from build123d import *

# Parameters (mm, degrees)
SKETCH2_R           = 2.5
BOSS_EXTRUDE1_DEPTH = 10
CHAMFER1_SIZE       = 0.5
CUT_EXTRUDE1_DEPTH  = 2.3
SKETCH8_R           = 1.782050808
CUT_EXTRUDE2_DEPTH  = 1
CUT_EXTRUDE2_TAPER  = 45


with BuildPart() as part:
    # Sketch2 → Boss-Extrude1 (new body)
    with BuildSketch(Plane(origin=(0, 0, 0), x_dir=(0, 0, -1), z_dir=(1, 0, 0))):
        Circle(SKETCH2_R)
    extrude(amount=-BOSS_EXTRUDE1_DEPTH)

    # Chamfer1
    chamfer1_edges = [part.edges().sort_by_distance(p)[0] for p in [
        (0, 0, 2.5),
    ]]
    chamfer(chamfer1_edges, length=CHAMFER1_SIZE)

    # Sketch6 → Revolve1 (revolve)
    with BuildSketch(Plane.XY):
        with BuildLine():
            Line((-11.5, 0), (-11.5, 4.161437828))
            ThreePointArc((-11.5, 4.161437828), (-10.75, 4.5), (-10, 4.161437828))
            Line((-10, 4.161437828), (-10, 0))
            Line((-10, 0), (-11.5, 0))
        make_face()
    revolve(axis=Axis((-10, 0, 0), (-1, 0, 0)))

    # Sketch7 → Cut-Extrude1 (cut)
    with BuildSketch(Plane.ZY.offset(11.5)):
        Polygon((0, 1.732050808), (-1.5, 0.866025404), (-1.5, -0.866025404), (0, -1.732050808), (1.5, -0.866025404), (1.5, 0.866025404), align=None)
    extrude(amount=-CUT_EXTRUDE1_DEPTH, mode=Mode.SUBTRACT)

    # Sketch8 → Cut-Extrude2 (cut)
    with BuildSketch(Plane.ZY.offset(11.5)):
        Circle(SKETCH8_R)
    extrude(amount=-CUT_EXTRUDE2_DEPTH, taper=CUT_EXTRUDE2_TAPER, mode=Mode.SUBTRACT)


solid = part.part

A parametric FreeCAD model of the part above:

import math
import FreeCAD as App
import Part
import Sketcher
from FreeCAD import Vector
Q = App.Units.Quantity


def edges_at(feature, points):
    """Names of the edges that pass closest to the given points."""
    edges = feature.Shape.Edges
    near = lambda p: min(range(len(edges)), key=lambda i: edges[i].distToShape(Part.Vertex(*p))[0])
    return sorted({f"Edge{near(p) + 1}" for p in points})


def add_polygon(sketch, points):
    """Adds a closed chain of lines whose ends are joined by coincident constraints."""
    first, n = sketch.GeometryCount, len(points)
    for a, b in zip(points, points[1:] + points[:1]):
        sketch.addGeometry(Part.LineSegment(App.Vector(*a, 0), App.Vector(*b, 0)), False)
    for i in range(n):
        sketch.addConstraint(Sketcher.Constraint("Coincident", first + i, 2, first + (i + 1) % n, 1))

doc = App.newDocument("Part")
body = doc.addObject("PartDesign::Body", "Body")

# Sketch on YZ plane
sketch1 = doc.addObject("Sketcher::SketchObject", "Sketch")
body.addObject(sketch1)
sketch1.AttachmentSupport = (doc.YZ_Plane, [""])
sketch1.MapMode = "FlatFace"
sketch1.addGeometry(Part.Circle(Vector(0, 0, 0), Vector(0, 0, 1), 2.5), False)
sketch1.addConstraint(Sketcher.Constraint("Coincident", 0, 3, -1, 1))
sketch1.addConstraint(Sketcher.Constraint("Diameter", 0, 5.0))
pad1 = doc.addObject("PartDesign::Pad", "Pad")
body.addObject(pad1)
pad1.Profile = sketch1
pad1.Length = 10
pad1.Reversed = True
doc.recompute()

chamfer = doc.addObject("PartDesign::Chamfer", "Chamfer")
body.addObject(chamfer)
chamfer.Base = (pad1, edges_at(pad1, [(0, 0, 2.5)]))
chamfer.Size = 0.5

# Sketch on XY plane
sketch2 = doc.addObject("Sketcher::SketchObject", "Sketch001")
body.addObject(sketch2)
sketch2.AttachmentSupport = (doc.XY_Plane, [""])
sketch2.MapMode = "FlatFace"
sketch2.addGeometry(Part.LineSegment(Vector(-11.5, 4.2, 0), Vector(-11.5, 0, 0)), False)
sketch2.addGeometry(Part.LineSegment(Vector(-11.5, 0, 0), Vector(-10, 0, 0)), False)
sketch2.addGeometry(Part.LineSegment(Vector(-10, 0, 0), Vector(-10, 4.2, 0)), False)
sketch2.addGeometry(Part.ArcOfCircle(Part.Circle(Vector(-10.8, 3.5, 0), Vector(0, 0, 1), 1), math.radians(41), math.radians(139)), False)
sketch2.addConstraint(Sketcher.Constraint("Coincident", 0, 2, 1, 1))
sketch2.addConstraint(Sketcher.Constraint("Coincident", 1, 2, 2, 1))
sketch2.addConstraint(Sketcher.Constraint("Coincident", 2, 2, 3, 1))
sketch2.addConstraint(Sketcher.Constraint("Coincident", 3, 2, 0, 1))
sketch2.addConstraint(Sketcher.Constraint("Vertical", 0))
sketch2.addConstraint(Sketcher.Constraint("Horizontal", 1))
sketch2.addConstraint(Sketcher.Constraint("Vertical", 2))
sketch2.addConstraint(Sketcher.Constraint("PointOnObject", 0, 2, -1))
sketch2.addConstraint(Sketcher.Constraint("Horizontal", 2, 2, 3, 2))
sketch2.addConstraint(Sketcher.Constraint("Radius", 3, 1.0))
sketch2.addConstraint(Sketcher.Constraint("DistanceX", 1, 1, 1, 2, 1.5))
sketch2.addConstraint(Sketcher.Constraint("DistanceX", 1, 2, -1, 1, 10.0))
sketch2.addConstraint(Sketcher.Constraint("DistanceY", -1, 1, 3, 3, 3.5))
revolution = doc.addObject("PartDesign::Revolution", "Revolution")
body.addObject(revolution)
revolution.Profile = sketch2
revolution.ReferenceAxis = (sketch2, ["H_Axis"])
revolution.Angle = 360

# Sketch on YZ plane
sketch3 = doc.addObject("Sketcher::SketchObject", "Sketch002")
body.addObject(sketch3)
sketch3.AttachmentSupport = (doc.YZ_Plane, [""])
sketch3.MapMode = "FlatFace"
sketch3.AttachmentOffset = App.Placement(Vector(0, 0, -11.5), App.Rotation())
add_polygon(sketch3, [(1.7, 0), (0.9, -1.5), (-0.9, -1.5), (-1.7, 0), (-0.9, 1.5), (0.9, 1.5)])  # lines 0-5
sketch3.addConstraint(Sketcher.Constraint("Horizontal", 1))
sketch3.addConstraint(Sketcher.Constraint("Horizontal", 4))
sketch3.addConstraint(Sketcher.Constraint("Symmetric", 0, 2, 3, 2, -1, 1))
sketch3.addConstraint(Sketcher.Constraint("Symmetric", 2, 2, 5, 2, -1, 1))
sketch3.addConstraint(Sketcher.Constraint("PointOnObject", 2, 2, -1))
sketch3.addConstraint(Sketcher.Constraint("Parallel", 2, 5))
sketch3.addConstraint(Sketcher.Constraint("Vertical", 1, 2, 3, 2))
sketch3.addConstraint(Sketcher.Constraint("Angle", 0, Q("-120 deg")))
sketch3.addConstraint(Sketcher.Constraint("DistanceY", 1, 2, 3, 2, 3.0))
sketch3.addConstraint(Sketcher.Constraint("DistanceX", 1, 2, 1, 1, 1.732051))
pocket1 = doc.addObject("PartDesign::Pocket", "Pocket")
body.addObject(pocket1)
pocket1.Profile = sketch3
pocket1.Length = 2.3
pocket1.Reversed = True

# Sketch on YZ plane
sketch4 = doc.addObject("Sketcher::SketchObject", "Sketch003")
body.addObject(sketch4)
sketch4.AttachmentSupport = (doc.YZ_Plane, [""])
sketch4.MapMode = "FlatFace"
sketch4.AttachmentOffset = App.Placement(Vector(0, 0, -11.5), App.Rotation())
sketch4.addGeometry(Part.Circle(Vector(0, 0, 0), Vector(0, 0, 1), 1.8), False)
sketch4.addConstraint(Sketcher.Constraint("Coincident", 0, 3, -1, 1))
sketch4.addConstraint(Sketcher.Constraint("Diameter", 0, 3.564102))
pocket2 = doc.addObject("PartDesign::Pocket", "Pocket001")
body.addObject(pocket2)
pocket2.Profile = sketch4
pocket2.Length = 1
pocket2.Reversed = True
pocket2.TaperAngle = -45

doc.recompute()
